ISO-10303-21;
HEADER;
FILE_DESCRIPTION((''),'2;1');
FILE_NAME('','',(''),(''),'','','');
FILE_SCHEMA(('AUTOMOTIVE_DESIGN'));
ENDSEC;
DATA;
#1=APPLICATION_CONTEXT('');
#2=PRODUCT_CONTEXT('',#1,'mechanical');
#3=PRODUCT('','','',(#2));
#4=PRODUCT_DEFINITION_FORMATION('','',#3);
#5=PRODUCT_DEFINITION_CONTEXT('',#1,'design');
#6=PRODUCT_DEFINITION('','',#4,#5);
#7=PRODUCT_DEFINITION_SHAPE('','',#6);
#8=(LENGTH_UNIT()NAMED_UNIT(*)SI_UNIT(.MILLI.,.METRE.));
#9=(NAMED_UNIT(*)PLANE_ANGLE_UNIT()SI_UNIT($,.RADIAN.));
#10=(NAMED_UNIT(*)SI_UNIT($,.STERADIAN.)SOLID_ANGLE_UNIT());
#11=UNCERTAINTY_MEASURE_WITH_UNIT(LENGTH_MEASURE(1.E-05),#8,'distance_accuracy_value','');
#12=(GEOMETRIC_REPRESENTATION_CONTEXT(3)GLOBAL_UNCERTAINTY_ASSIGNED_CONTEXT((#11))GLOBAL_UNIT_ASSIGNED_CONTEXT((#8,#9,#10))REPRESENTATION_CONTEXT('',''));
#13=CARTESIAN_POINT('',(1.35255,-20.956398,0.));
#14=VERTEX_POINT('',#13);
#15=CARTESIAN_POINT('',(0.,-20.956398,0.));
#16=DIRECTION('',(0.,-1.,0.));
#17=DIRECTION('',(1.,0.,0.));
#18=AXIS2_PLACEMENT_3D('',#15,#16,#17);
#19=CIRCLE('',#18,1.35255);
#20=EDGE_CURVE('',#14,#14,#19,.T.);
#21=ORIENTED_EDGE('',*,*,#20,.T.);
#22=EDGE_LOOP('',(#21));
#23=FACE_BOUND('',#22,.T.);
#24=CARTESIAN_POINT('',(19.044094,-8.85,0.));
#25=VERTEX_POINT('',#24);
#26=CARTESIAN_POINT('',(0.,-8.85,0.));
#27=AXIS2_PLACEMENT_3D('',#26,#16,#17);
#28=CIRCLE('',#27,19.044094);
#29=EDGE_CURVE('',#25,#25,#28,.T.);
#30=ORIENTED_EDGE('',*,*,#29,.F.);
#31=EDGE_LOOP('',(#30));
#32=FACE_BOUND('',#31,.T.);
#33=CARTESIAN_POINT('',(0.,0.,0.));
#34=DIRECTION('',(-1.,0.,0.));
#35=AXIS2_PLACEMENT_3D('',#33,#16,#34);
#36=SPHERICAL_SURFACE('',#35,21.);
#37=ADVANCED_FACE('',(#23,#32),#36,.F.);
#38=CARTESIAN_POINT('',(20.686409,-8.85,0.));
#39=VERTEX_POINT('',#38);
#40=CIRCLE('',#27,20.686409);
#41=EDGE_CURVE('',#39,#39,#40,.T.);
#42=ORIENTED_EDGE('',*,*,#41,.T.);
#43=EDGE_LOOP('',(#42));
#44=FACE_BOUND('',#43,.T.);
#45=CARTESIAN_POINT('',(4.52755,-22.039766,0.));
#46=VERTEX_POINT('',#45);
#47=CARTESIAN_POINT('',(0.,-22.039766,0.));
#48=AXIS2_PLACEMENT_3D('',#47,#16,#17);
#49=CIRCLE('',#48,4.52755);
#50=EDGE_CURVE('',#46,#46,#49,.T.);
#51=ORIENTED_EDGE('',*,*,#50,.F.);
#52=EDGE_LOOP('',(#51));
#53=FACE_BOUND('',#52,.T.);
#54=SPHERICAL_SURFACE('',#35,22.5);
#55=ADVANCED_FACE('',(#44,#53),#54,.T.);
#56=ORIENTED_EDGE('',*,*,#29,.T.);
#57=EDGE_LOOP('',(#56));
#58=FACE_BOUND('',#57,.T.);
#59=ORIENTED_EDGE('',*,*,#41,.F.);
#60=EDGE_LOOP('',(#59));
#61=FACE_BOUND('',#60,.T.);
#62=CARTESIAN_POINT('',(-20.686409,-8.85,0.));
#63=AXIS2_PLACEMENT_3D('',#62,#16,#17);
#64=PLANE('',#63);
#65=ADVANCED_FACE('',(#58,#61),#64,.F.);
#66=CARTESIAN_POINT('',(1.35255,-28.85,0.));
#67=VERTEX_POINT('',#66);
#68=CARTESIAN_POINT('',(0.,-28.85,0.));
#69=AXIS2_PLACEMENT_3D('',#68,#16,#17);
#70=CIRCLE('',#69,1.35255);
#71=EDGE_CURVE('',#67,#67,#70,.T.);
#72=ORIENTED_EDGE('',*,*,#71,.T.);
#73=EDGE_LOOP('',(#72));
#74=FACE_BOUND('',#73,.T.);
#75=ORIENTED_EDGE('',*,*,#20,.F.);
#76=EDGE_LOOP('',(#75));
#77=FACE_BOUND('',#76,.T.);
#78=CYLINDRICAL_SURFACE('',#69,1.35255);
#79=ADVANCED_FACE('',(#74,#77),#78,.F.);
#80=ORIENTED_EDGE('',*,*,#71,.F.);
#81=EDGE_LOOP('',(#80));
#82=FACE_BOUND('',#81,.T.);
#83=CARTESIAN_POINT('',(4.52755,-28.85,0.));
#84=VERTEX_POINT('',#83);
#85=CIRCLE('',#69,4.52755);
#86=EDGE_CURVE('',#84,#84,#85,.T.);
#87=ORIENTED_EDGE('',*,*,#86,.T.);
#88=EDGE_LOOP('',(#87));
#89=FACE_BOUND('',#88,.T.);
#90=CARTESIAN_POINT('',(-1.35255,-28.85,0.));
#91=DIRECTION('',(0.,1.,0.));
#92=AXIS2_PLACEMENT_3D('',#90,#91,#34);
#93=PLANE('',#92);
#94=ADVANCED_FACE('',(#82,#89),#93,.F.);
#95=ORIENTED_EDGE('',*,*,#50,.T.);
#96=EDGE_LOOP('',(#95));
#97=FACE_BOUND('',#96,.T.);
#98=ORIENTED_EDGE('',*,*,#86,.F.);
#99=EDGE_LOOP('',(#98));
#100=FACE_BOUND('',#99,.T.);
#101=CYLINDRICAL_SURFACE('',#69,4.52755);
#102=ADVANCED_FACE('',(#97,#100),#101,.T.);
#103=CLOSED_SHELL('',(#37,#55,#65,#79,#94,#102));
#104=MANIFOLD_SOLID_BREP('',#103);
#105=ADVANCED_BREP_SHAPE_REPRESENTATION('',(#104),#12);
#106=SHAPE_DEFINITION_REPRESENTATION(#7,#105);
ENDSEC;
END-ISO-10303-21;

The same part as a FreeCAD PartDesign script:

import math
import FreeCAD as App
import Part
import Sketcher
from FreeCAD import Vector
Q = App.Units.Quantity

doc = App.newDocument("Part")
body = doc.addObject("PartDesign::Body", "Body")

# Sketch on XY plane
sketch1 = doc.addObject("Sketcher::SketchObject", "Sketch")
body.addObject(sketch1)
sketch1.AttachmentSupport = (doc.XY_Plane, [""])
sketch1.MapMode = "FlatFace"
sketch1.addGeometry([
    Part.LineSegment(Vector(-1.4, -28.9, 0), Vector(-1.4, -21, 0)),  # 0
    Part.ArcOfCircle(Part.Circle(Vector(0, 0, 0), Vector(0, 0, 1), 21), math.radians(-155), math.radians(-94)),  # 1
    Part.LineSegment(Vector(-19, -8.8, 0), Vector(-20.7, -8.8, 0)),  # 2
    Part.ArcOfCircle(Part.Circle(Vector(0, 0, 0), Vector(0, 0, 1), 22.5), math.radians(-157), math.radians(-102)),  # 3
    Part.LineSegment(Vector(-4.5, -22, 0), Vector(-4.5, -28.9, 0)),  # 4
    Part.LineSegment(Vector(-4.5, -28.9, 0), Vector(-1.4, -28.9, 0)),  # 5
], False)
sketch1.addConstraint([
    Sketcher.Constraint("Coincident", 0, 2, 1, 2),
    Sketcher.Constraint("Coincident", 1, 1, 2, 1),
    Sketcher.Constraint("Coincident", 2, 2, 3, 1),
    Sketcher.Constraint("Coincident", 3, 2, 4, 1),
    Sketcher.Constraint("Coincident", 4, 2, 5, 1),
    Sketcher.Constraint("Coincident", 5, 2, 0, 1),
    Sketcher.Constraint("Vertical", 0),
    Sketcher.Constraint("Horizontal", 2),
    Sketcher.Constraint("Vertical", 4),
    Sketcher.Constraint("Horizontal", 5),
    Sketcher.Constraint("Coincident", 1, 3, -1, 1),
    Sketcher.Constraint("Coincident", 3, 3, -1, 1),
    Sketcher.Constraint("Radius", 1, Q("21 mm")),
    Sketcher.Constraint("Radius", 3, Q("22.5 mm")),
    Sketcher.Constraint("DistanceY", 4, 2, 1, 1, Q("20 mm")),
    Sketcher.Constraint("DistanceX", 5, 1, 5, 2, Q("3.175 mm")),
    Sketcher.Constraint("DistanceY", 1, 1, -1, 1, Q("8.85 mm")),
    Sketcher.Constraint("DistanceY", 0, 1, 0, 2, Q("7.893602 mm")),
])
revolution = doc.addObject("PartDesign::Revolution", "Revolution")
body.addObject(revolution)
revolution.Profile = sketch1
revolution.ReferenceAxis = (sketch1, ["V_Axis"])
revolution.Angle = 360

doc.recompute()
